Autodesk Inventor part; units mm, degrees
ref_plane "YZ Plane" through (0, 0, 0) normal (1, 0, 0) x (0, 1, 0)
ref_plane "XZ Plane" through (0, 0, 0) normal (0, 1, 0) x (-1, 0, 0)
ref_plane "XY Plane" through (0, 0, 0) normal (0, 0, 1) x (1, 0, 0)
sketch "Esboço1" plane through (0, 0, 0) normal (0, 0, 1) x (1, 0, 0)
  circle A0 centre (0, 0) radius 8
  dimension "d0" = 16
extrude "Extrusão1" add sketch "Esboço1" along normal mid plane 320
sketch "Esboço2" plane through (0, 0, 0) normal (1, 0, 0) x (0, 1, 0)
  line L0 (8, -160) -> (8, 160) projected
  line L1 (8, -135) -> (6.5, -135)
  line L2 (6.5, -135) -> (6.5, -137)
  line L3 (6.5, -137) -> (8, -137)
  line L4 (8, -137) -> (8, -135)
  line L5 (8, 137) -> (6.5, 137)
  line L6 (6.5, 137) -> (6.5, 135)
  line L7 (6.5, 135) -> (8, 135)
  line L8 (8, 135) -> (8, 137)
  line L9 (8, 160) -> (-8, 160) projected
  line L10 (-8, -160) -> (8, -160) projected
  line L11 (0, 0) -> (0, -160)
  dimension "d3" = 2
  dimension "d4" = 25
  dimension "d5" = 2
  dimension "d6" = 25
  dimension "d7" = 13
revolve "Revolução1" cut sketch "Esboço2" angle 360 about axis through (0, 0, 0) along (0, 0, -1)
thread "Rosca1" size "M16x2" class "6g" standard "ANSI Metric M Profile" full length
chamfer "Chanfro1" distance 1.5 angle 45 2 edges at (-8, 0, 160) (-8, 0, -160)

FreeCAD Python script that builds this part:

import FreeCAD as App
import Part
import Sketcher
from FreeCAD import Vector


def edges_at(feature, points):
    """Names of the edges that pass closest to the given points."""
    edges = feature.Shape.Edges
    near = lambda p: min(range(len(edges)), key=lambda i: edges[i].distToShape(Part.Vertex(*p))[0])
    return sorted({f"Edge{near(p) + 1}" for p in points})


def add_polygon(sketch, points):
    """Adds a closed chain of lines whose ends are joined by coincident constraints."""
    first, n = sketch.GeometryCount, len(points)
    for a, b in zip(points, points[1:] + points[:1]):
        sketch.addGeometry(Part.LineSegment(App.Vector(*a, 0), App.Vector(*b, 0)), False)
    for i in range(n):
        sketch.addConstraint(Sketcher.Constraint("Coincident", first + i, 2, first + (i + 1) % n, 1))

doc = App.newDocument("Part")
params = doc.addObject("Spreadsheet::Sheet", "Params")
for row, (alias, value) in enumerate([
    ("sketch1_diameter", "16 mm"),
    ("pad1_length", "320 mm"),
    ("sketch2_height", "2 mm"),
    ("sketch2_width", "1.5 mm"),
    ("groove_angle", "360 deg"),
    ("chamfer_size", "1.5 mm"),
], start=1):
    params.set(f"A{row}", alias)
    params.set(f"B{row}", "=" + value)
    params.setAlias(f"B{row}", alias)

body = doc.addObject("PartDesign::Body", "Body")

# Sketch on XY plane
sketch1 = body.newObject("Sketcher::SketchObject", "Sketch")
sketch1.AttachmentSupport = (doc.getObject("XY_Plane"), [""])
sketch1.MapMode = "FlatFace"
sketch1.addGeometry(Part.Circle(Vector(0, 0, 0), Vector(0, 0, 1), 8), False)
sketch1.addConstraint([
    Sketcher.Constraint("Coincident", 0, 3, -1, 1),
    Sketcher.Constraint("Diameter", 0, 16.0),
])
sketch1.setExpression("Constraints[1]", "Params.sketch1_diameter")
pad1 = body.newObject("PartDesign::Pad", "Pad")
pad1.Profile = sketch1
pad1.setExpression("Length", "Params.pad1_length")
pad1.Midplane = True

# Sketch on YZ plane
sketch2 = body.newObject("Sketcher::SketchObject", "Sketch001")
sketch2.AttachmentSupport = (doc.getObject("YZ_Plane"), [""])
sketch2.MapMode = "FlatFace"
add_polygon(sketch2, [(6.5, -137), (8, -137), (8, -135), (6.5, -135)])  # lines 0-3
add_polygon(sketch2, [(6.5, 135), (8, 135), (8, 137), (6.5, 137)])  # lines 4-7
sketch2.addConstraint([
    Sketcher.Constraint("Horizontal", 0),
    Sketcher.Constraint("Vertical", 1),
    Sketcher.Constraint("Horizontal", 2),
    Sketcher.Constraint("Vertical", 3),
    Sketcher.Constraint("Horizontal", 4),
    Sketcher.Constraint("Vertical", 5),
    Sketcher.Constraint("Horizontal", 6),
    Sketcher.Constraint("Vertical", 7),
    Sketcher.Constraint("Symmetric", 1, 2, 4, 2, -1),
    Sketcher.Constraint("Symmetric", 3, 2, 6, 2, -1),
    Sketcher.Constraint("DistanceY", 1, 1, 1, 2, 2.0),
    Sketcher.Constraint("DistanceX", 0, 1, 0, 2, 1.5),
    Sketcher.Constraint("DistanceX", -1, 1, 0, 2, 8.0),
    Sketcher.Constraint("DistanceY", 0, 2, -1, 1, 137.0),
])
sketch2.setExpression("Constraints[18]", "Params.sketch2_height")
sketch2.setExpression("Constraints[19]", "Params.sketch2_width")
groove = body.newObject("PartDesign::Groove", "Groove")
groove.Profile = sketch2
groove.ReferenceAxis = (sketch2, ["V_Axis"])
groove.setExpression("Angle", "Params.groove_angle")
doc.recompute()

chamfer = body.newObject("PartDesign::Chamfer", "Chamfer")
chamfer.Base = (groove, edges_at(groove, [(-8, 0, 160), (-8, 0, -160)]))
chamfer.setExpression("Size", "Params.chamfer_size")

doc.recompute()
